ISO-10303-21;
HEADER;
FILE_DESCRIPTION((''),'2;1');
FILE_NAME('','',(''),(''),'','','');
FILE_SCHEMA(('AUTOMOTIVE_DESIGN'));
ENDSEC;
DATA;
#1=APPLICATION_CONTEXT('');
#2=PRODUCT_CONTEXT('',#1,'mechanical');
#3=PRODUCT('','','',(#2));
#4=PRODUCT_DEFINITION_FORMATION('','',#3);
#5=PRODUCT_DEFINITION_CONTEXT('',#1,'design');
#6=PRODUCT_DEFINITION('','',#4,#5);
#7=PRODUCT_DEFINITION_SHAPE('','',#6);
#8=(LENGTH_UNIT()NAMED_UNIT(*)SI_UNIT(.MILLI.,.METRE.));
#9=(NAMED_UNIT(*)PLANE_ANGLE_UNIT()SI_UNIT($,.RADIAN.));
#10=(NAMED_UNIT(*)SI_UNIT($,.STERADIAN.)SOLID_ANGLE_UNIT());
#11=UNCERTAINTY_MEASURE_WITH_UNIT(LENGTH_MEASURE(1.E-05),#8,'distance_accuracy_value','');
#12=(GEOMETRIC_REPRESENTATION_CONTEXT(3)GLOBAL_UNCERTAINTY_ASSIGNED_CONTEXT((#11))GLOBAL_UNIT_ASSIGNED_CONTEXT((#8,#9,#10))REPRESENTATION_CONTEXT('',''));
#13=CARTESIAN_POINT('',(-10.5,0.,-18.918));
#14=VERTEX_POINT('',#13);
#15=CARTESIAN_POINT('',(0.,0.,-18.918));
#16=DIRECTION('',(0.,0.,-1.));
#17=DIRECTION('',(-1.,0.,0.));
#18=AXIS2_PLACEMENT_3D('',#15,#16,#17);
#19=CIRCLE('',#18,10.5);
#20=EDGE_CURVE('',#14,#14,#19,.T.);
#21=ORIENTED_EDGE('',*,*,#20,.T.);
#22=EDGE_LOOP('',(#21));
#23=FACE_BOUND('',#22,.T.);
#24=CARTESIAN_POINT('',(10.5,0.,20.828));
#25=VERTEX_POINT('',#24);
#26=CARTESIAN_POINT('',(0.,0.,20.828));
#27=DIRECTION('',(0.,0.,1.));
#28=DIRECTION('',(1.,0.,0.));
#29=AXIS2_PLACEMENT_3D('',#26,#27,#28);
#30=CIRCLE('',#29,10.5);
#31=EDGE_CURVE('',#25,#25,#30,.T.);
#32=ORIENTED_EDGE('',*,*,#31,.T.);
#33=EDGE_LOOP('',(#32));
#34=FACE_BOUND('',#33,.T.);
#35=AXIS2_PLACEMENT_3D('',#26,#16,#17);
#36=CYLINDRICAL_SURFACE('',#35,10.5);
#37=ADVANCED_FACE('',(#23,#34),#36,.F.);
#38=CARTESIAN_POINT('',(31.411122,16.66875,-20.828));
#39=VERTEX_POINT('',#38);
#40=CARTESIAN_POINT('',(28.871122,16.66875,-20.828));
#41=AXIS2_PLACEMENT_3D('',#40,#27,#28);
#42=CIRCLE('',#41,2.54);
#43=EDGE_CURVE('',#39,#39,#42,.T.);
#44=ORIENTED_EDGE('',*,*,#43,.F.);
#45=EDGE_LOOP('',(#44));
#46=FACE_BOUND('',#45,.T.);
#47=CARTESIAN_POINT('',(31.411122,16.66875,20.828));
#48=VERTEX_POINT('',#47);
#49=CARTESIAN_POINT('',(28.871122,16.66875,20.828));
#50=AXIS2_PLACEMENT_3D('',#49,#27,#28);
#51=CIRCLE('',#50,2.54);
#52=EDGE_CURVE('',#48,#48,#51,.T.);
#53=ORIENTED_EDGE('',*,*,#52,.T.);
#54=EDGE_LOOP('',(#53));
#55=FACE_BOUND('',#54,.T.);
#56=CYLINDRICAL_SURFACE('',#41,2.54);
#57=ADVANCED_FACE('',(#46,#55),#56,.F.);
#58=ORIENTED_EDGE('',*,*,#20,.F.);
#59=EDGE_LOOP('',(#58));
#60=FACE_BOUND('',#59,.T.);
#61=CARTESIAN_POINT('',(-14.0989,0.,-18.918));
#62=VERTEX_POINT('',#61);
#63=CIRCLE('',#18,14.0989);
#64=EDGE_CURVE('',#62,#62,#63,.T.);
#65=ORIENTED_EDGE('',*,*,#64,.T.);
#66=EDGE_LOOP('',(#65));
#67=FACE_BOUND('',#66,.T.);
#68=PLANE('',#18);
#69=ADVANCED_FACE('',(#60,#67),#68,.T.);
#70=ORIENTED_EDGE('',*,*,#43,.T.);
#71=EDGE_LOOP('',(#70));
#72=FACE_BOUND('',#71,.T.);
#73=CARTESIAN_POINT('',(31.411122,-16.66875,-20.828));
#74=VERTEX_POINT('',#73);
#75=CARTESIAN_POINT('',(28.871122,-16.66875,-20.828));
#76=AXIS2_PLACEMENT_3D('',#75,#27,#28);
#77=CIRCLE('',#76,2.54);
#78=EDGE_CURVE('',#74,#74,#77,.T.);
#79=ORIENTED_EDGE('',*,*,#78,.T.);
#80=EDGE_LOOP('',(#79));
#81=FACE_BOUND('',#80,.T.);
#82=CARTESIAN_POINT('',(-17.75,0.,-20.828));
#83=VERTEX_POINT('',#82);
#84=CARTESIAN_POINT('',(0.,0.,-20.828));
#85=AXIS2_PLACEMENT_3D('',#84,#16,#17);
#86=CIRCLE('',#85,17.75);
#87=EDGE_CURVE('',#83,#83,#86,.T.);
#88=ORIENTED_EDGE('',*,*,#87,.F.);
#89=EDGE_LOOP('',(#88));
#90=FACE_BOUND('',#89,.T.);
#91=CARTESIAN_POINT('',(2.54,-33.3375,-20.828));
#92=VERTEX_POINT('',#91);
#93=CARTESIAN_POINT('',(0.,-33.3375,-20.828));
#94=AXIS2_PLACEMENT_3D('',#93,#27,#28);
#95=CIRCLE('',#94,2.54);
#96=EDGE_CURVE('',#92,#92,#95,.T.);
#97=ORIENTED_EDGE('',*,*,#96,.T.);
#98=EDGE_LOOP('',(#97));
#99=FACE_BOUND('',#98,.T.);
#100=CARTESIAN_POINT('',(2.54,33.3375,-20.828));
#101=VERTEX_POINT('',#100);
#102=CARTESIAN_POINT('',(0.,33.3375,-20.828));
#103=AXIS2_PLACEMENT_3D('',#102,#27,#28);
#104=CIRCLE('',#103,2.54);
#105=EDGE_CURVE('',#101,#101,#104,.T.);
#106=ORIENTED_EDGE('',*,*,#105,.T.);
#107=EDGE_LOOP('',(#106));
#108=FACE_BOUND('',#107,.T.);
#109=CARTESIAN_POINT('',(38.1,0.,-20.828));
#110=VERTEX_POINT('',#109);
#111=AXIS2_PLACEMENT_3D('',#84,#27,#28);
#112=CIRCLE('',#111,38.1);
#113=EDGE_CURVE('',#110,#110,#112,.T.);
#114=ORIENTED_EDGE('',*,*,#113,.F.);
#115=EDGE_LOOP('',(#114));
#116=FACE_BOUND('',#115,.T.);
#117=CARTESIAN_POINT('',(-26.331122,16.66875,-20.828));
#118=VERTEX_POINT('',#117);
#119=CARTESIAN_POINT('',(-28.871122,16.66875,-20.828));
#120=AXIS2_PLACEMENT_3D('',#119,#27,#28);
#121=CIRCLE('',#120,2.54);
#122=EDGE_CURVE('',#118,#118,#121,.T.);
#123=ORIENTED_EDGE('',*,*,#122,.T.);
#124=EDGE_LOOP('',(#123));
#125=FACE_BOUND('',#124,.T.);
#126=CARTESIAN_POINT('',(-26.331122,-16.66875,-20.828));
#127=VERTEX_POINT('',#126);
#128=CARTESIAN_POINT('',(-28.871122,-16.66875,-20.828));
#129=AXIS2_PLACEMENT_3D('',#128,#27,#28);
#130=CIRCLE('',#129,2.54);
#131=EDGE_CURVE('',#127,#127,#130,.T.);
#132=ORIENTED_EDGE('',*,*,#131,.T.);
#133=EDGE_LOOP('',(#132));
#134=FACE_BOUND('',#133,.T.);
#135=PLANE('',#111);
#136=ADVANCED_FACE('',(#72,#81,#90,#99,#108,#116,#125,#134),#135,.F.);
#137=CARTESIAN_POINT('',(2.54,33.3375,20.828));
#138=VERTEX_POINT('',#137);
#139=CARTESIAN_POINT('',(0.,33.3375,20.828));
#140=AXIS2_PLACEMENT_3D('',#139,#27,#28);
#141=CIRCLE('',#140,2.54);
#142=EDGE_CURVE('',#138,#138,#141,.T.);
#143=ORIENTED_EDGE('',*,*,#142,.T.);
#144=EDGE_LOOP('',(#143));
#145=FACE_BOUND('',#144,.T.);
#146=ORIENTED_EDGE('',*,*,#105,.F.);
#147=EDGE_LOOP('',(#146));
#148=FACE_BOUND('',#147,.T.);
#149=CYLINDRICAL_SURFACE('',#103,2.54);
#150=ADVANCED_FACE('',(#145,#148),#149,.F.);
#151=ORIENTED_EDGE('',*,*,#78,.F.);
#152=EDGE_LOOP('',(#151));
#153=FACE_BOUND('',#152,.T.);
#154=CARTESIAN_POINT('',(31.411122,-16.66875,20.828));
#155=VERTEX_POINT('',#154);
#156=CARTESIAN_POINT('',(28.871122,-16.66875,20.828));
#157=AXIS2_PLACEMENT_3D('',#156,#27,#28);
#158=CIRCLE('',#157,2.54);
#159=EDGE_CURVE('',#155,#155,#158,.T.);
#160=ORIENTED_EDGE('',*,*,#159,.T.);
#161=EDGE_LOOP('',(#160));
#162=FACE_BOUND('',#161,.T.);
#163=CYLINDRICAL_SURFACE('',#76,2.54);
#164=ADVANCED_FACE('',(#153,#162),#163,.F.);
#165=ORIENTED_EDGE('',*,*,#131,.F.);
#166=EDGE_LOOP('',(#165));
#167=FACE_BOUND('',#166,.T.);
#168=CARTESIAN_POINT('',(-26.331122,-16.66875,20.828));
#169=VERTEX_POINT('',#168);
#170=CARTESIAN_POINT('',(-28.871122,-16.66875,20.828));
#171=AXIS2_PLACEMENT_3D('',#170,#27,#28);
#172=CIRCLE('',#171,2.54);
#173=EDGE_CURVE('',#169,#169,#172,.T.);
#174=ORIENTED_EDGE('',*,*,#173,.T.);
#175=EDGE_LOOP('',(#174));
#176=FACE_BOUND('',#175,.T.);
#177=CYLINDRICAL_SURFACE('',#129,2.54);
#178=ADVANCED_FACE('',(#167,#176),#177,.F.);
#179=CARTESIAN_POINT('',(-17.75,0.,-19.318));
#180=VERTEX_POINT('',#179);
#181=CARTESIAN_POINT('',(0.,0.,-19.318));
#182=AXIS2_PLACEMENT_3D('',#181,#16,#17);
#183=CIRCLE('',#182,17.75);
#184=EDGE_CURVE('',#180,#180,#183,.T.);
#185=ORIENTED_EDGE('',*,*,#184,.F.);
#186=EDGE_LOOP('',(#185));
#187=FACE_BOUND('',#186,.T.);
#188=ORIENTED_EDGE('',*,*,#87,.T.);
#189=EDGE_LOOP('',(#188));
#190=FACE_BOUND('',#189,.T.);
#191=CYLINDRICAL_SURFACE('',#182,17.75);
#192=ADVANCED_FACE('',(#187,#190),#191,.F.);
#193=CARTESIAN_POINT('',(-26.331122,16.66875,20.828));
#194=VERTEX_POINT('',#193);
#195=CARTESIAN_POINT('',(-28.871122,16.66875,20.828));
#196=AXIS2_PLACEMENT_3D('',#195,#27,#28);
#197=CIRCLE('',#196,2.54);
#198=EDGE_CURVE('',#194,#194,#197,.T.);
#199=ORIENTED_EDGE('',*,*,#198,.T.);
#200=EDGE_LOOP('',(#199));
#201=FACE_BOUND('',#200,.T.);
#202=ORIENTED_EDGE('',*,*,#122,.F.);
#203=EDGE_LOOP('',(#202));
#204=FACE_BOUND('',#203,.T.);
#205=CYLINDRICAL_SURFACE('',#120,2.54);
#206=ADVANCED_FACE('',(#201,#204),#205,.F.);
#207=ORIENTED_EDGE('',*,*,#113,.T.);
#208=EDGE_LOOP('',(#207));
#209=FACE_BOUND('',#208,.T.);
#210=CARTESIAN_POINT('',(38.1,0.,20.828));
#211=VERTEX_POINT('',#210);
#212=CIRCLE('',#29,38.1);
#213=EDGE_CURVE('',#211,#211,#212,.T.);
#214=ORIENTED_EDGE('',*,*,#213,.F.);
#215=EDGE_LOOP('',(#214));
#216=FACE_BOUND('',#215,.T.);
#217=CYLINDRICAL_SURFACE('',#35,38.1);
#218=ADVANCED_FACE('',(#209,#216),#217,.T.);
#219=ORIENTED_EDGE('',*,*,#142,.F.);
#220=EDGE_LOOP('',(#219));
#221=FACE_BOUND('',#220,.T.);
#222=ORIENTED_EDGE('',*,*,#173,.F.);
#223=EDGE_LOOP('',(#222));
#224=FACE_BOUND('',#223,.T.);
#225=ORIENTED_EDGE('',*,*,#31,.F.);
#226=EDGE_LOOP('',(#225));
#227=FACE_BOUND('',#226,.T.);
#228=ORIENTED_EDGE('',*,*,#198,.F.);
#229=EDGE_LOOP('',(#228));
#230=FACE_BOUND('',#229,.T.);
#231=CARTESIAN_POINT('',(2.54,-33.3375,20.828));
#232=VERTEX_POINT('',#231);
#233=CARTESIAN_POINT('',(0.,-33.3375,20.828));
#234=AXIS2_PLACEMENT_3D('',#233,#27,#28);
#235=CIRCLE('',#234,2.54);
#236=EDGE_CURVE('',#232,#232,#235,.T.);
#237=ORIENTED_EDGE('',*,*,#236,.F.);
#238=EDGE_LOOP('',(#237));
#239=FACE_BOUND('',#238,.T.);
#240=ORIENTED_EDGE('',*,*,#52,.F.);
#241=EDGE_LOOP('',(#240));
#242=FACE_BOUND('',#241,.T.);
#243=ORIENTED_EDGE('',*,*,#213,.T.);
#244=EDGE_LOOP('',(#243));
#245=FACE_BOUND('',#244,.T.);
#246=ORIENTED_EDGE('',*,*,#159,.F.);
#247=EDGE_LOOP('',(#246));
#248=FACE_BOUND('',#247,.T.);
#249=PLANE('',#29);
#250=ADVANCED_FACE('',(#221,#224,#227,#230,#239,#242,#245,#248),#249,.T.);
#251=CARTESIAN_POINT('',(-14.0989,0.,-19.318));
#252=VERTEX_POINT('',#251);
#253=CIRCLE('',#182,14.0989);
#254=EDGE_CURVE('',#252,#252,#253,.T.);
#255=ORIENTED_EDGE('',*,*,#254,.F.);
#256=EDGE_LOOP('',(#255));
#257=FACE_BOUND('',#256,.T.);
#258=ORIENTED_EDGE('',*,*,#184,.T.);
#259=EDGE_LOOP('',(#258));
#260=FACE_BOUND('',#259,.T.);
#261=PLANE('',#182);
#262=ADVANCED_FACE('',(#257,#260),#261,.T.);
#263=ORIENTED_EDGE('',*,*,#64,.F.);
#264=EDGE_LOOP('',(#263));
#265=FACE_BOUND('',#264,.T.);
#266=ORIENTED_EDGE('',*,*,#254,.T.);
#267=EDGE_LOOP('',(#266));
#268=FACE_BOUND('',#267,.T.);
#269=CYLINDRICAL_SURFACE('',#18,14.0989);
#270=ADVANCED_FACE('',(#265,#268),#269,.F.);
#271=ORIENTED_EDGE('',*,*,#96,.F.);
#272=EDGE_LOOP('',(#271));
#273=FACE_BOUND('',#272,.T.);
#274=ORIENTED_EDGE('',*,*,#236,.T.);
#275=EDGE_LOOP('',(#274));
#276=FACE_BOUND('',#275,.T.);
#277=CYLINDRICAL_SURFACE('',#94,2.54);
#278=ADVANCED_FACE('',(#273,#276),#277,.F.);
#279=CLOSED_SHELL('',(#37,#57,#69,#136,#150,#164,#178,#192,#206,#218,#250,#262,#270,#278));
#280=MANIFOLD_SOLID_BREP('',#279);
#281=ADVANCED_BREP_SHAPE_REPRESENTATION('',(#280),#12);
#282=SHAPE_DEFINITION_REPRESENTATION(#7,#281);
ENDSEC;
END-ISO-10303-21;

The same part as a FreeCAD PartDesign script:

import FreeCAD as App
import Part
import Sketcher

V = App.Vector
Q = App.Units.Quantity

doc = App.newDocument("Part")
params = doc.addObject("Spreadsheet::Sheet", "Params")
for row, (alias, value) in enumerate([
    ("sketch1_diameter", "21 mm"),
    ("sketch1_diameter2", "76.2 mm"),
    ("pad1_length", "41.656 mm"),
    ("sketch2_diameter", "35.5 mm"),
    ("pocket1_length", "1.51 mm"),
    ("sketch3_diameter", "5.08 mm"),
    ("pocket3_length", "0.4 mm"),
], start=1):
    params.set(f"A{row}", alias)
    params.set(f"B{row}", "=" + value)
    params.setAlias(f"B{row}", alias)

body = doc.addObject("PartDesign::Body", "Body")

# Sketch on XY plane
sketch1 = body.newObject("Sketcher::SketchObject", "Sketch")
sketch1.AttachmentSupport = (doc.getObject("XY_Plane"), [""])
sketch1.MapMode = "FlatFace"
sketch1.addGeometry(Part.Circle(V(0, 0, 0), V(0, 0, 1), 38.1), False)
sketch1.addGeometry(Part.Circle(V(0, 0, 0), V(0, 0, 1), 10.5), False)
sketch1.addConstraint(Sketcher.Constraint("Coincident", 0, 3, -1, 1))
sketch1.addConstraint(Sketcher.Constraint("Coincident", 1, 3, -1, 1))
sketch1.addConstraint(Sketcher.Constraint("Diameter", 1, Q("21 mm")))
sketch1.addConstraint(Sketcher.Constraint("Diameter", 0, Q("76.2 mm")))
sketch1.setExpression("Constraints[2]", "Params.sketch1_diameter")
sketch1.setExpression("Constraints[3]", "Params.sketch1_diameter2")
pad1 = body.newObject("PartDesign::Pad", "Pad")
pad1.Profile = sketch1
pad1.setExpression("Length", "Params.pad1_length")
pad1.Midplane = True

# Sketch on XY plane
sketch2 = body.newObject("Sketcher::SketchObject", "Sketch001")
sketch2.AttachmentSupport = (doc.getObject("XY_Plane"), [""])
sketch2.MapMode = "FlatFace"
sketch2.AttachmentOffset = App.Placement(V(0, 0, -20.828), App.Rotation())
sketch2.addGeometry(Part.Circle(V(0, 0, 0), V(0, 0, 1), 17.75), False)
sketch2.addConstraint(Sketcher.Constraint("Coincident", 0, 3, -1, 1))
sketch2.addConstraint(Sketcher.Constraint("Diameter", 0, Q("35.5 mm")))
sketch2.setExpression("Constraints[1]", "Params.sketch2_diameter")
pocket1 = body.newObject("PartDesign::Pocket", "Pocket")
pocket1.Profile = sketch2
pocket1.setExpression("Length", "Params.pocket1_length")
pocket1.Reversed = True

# Sketch on XY plane
sketch3 = body.newObject("Sketcher::SketchObject", "Sketch002")
sketch3.AttachmentSupport = (doc.getObject("XY_Plane"), [""])
sketch3.MapMode = "FlatFace"
sketch3.AttachmentOffset = App.Placement(V(0, 0, 20.828), App.Rotation())
sketch3.addGeometry(Part.Circle(V(0, 33.3375, 0), V(0, 0, 1), 2.54), False)
sketch3.addGeometry(Part.Circle(V(28.871122, 16.66875, 0), V(0, 0, 1), 2.54), False)
sketch3.addGeometry(Part.Circle(V(28.871122, -16.66875, 0), V(0, 0, 1), 2.54), False)
sketch3.addGeometry(Part.Circle(V(0, -33.3375, 0), V(0, 0, 1), 2.54), False)
sketch3.addGeometry(Part.Circle(V(-28.871122, -16.66875, 0), V(0, 0, 1), 2.54), False)
sketch3.addGeometry(Part.Circle(V(-28.871122, 16.66875, 0), V(0, 0, 1), 2.54), False)
sketch3.addConstraint(Sketcher.Constraint("Equal", 0, 1))
sketch3.addConstraint(Sketcher.Constraint("Equal", 1, 2))
sketch3.addConstraint(Sketcher.Constraint("Equal", 2, 3))
sketch3.addConstraint(Sketcher.Constraint("Equal", 3, 4))
sketch3.addConstraint(Sketcher.Constraint("Equal", 4, 5))
sketch3.addConstraint(Sketcher.Constraint("Symmetric", 0, 3, 3, 3, -1, 1))
sketch3.addConstraint(Sketcher.Constraint("Symmetric", 1, 3, 4, 3, -1, 1))
sketch3.addConstraint(Sketcher.Constraint("Symmetric", 2, 3, 5, 3, -1, 1))
sketch3.addConstraint(Sketcher.Constraint("Symmetric", 2, 3, 4, 3, -2))
sketch3.addConstraint(Sketcher.Constraint("PointOnObject", 0, 3, -2))
sketch3.addConstraint(Sketcher.Constraint("Diameter", 0, Q("5.08 mm")))
sketch3.addConstraint(Sketcher.Constraint("DistanceY", 3, 3, 0, 3, Q("66.675 mm")))
sketch3.addConstraint(Sketcher.Constraint("DistanceY", 2, 3, 1, 3, Q("33.3375 mm")))
sketch3.addConstraint(Sketcher.Constraint("DistanceX", -1, 1, 1, 3, Q("28.871122 mm")))
sketch3.setExpression("Constraints[10]", "Params.sketch3_diameter")
pocket2 = body.newObject("PartDesign::Pocket", "Pocket001")
pocket2.Profile = sketch3
pocket2.Type = "ThroughAll"

# Sketch on XY plane
sketch4 = body.newObject("Sketcher::SketchObject", "Sketch003")
sketch4.AttachmentSupport = (doc.getObject("XY_Plane"), [""])
sketch4.MapMode = "FlatFace"
sketch4.AttachmentOffset = App.Placement(V(0, 0, -19.318), App.Rotation())
sketch4.addGeometry(Part.Circle(V(0, 0, 0), V(0, 0, 1), 14.0989), False)
sketch4.addConstraint(Sketcher.Constraint("Coincident", 0, 3, -1, 1))
sketch4.addConstraint(Sketcher.Constraint("Diameter", 0, Q("28.1978 mm")))
pocket3 = body.newObject("PartDesign::Pocket", "Pocket002")
pocket3.Profile = sketch4
pocket3.setExpression("Length", "Params.pocket3_length")
pocket3.Reversed = True

doc.recompute()
